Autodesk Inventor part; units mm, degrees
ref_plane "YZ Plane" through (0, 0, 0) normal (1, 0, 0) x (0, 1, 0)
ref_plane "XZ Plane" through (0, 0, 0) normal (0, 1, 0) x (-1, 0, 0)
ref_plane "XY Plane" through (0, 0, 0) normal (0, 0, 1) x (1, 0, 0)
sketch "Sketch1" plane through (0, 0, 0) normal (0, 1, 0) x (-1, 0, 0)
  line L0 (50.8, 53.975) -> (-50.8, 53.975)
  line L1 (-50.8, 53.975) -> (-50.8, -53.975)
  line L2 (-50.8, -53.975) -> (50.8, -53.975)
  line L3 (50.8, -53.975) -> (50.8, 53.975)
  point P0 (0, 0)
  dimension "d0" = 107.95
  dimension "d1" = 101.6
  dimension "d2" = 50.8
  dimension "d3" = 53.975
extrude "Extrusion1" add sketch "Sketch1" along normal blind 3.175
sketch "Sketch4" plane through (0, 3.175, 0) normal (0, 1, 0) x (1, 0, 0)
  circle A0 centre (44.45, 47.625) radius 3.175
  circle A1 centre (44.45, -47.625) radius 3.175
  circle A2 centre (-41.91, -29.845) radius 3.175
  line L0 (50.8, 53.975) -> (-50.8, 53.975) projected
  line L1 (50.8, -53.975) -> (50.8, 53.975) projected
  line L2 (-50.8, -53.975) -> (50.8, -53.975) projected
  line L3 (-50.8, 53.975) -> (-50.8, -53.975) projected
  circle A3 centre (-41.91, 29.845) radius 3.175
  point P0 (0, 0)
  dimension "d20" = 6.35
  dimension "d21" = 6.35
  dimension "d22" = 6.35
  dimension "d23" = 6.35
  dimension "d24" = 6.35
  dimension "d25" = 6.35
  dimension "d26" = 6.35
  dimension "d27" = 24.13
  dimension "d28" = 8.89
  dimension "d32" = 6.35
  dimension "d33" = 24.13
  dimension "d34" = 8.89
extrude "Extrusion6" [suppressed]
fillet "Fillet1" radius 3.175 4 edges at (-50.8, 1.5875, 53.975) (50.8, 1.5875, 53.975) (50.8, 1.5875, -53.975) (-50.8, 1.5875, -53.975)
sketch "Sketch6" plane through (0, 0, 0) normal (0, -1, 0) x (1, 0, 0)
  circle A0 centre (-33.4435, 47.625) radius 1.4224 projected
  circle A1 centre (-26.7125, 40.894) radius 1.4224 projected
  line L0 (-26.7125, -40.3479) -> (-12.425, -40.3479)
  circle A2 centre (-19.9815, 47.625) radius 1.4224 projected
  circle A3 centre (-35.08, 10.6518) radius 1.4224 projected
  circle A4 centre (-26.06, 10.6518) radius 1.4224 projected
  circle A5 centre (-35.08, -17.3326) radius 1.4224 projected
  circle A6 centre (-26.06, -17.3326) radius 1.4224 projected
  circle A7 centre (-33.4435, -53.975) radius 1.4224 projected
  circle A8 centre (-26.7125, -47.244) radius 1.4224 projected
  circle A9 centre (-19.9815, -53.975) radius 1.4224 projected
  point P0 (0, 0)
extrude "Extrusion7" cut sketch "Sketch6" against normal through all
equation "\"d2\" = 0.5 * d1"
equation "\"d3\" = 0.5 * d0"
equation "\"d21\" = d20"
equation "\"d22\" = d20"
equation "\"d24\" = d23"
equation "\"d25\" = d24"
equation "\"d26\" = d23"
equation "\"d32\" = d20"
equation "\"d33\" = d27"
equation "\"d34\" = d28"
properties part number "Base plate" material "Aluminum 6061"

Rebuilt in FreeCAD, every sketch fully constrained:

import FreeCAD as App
import Part
import Sketcher
from FreeCAD import Vector
Q = App.Units.Quantity


def edges_at(feature, points):
    """Names of the edges that pass closest to the given points."""
    edges = feature.Shape.Edges
    near = lambda p: min(range(len(edges)), key=lambda i: edges[i].distToShape(Part.Vertex(*p))[0])
    return sorted({f"Edge{near(p) + 1}" for p in points})


def add_polygon(sketch, points):
    """Adds a closed chain of lines whose ends are joined by coincident constraints."""
    first, n = sketch.GeometryCount, len(points)
    for a, b in zip(points, points[1:] + points[:1]):
        sketch.addGeometry(Part.LineSegment(App.Vector(*a, 0), App.Vector(*b, 0)), False)
    for i in range(n):
        sketch.addConstraint(Sketcher.Constraint("Coincident", first + i, 2, first + (i + 1) % n, 1))

doc = App.newDocument("Part")
body = doc.addObject("PartDesign::Body", "Body")

# Sketch on XZ plane
sketch1 = body.newObject("Sketcher::SketchObject", "Sketch")
sketch1.AttachmentSupport = (doc.getObject("XZ_Plane"), [""])
sketch1.MapMode = "FlatFace"
add_polygon(sketch1, [(-51, -54), (-51, 54), (51, 54), (51, -54)])  # lines 0-3
sketch1.addConstraint([
    Sketcher.Constraint("Vertical", 0),
    Sketcher.Constraint("Horizontal", 1),
    Sketcher.Constraint("Vertical", 2),
    Sketcher.Constraint("Horizontal", 3),
    Sketcher.Constraint("Symmetric", 0, 2, 2, 2, -1, 1),
    Sketcher.Constraint("DistanceX", 1, 1, 1, 2, Q("4 in")),
    Sketcher.Constraint("DistanceY", 0, 1, 0, 2, Q("4.25 in")),
])
pad1 = body.newObject("PartDesign::Pad", "Pad")
pad1.Profile = sketch1
pad1.Length = Q("0.125 in")
pad1.Reversed = True
doc.recompute()

fillet = body.newObject("PartDesign::Fillet", "Fillet")
fillet.Base = (pad1, edges_at(pad1, [
    (-50.8, 1.587, 53.975),
    (50.8, 1.587, 53.975),
    (50.8, 1.587, -53.975),
    (-50.8, 1.587, -53.975),
]))
fillet.Radius = Q("0.125 in")

# Sketch on XZ plane
sketch2 = body.newObject("Sketcher::SketchObject", "Sketch001")
sketch2.AttachmentSupport = (doc.getObject("XZ_Plane"), [""])
sketch2.MapMode = "FlatFace"
sketch2.addGeometry([
    Part.Circle(Vector(-33.4, 47.6, 0), Vector(0, 0, 1), 1.4),  # 0
    Part.Circle(Vector(-26.7, 40.9, 0), Vector(0, 0, 1), 1.4),  # 1
    Part.Circle(Vector(-20, 47.6, 0), Vector(0, 0, 1), 1.4),  # 2
    Part.Circle(Vector(-35.1, 10.7, 0), Vector(0, 0, 1), 1.4),  # 3
    Part.Circle(Vector(-26.1, 10.7, 0), Vector(0, 0, 1), 1.4),  # 4
    Part.Circle(Vector(-35.1, -17.3, 0), Vector(0, 0, 1), 1.4),  # 5
    Part.Circle(Vector(-26.1, -17.3, 0), Vector(0, 0, 1), 1.4),  # 6
    Part.Circle(Vector(-33.4, -54, 0), Vector(0, 0, 1), 1.4),  # 7
    Part.Circle(Vector(-26.7, -47.2, 0), Vector(0, 0, 1), 1.4),  # 8
    Part.Circle(Vector(-20, -54, 0), Vector(0, 0, 1), 1.4),  # 9
], False)
sketch2.addConstraint([
    Sketcher.Constraint("Equal", 0, 1),
    Sketcher.Constraint("Equal", 1, 2),
    Sketcher.Constraint("Equal", 2, 3),
    Sketcher.Constraint("Equal", 3, 4),
    Sketcher.Constraint("Equal", 4, 5),
    Sketcher.Constraint("Equal", 5, 6),
    Sketcher.Constraint("Equal", 6, 7),
    Sketcher.Constraint("Equal", 7, 8),
    Sketcher.Constraint("Equal", 8, 9),
    Sketcher.Constraint("Horizontal", 0, 3, 2, 3),
    Sketcher.Constraint("Horizontal", 3, 3, 4, 3),
    Sketcher.Constraint("Horizontal", 5, 3, 6, 3),
    Sketcher.Constraint("Horizontal", 7, 3, 9, 3),
    Sketcher.Constraint("Vertical", 3, 3, 5, 3),
    Sketcher.Constraint("Vertical", 4, 3, 6, 3),
    Sketcher.Constraint("Vertical", 0, 3, 7, 3),
    Sketcher.Constraint("Vertical", 1, 3, 8, 3),
    Sketcher.Constraint("Vertical", 2, 3, 9, 3),
    Sketcher.Constraint("Diameter", 0, Q("0.112 in")),
    Sketcher.Constraint("DistanceY", -1, 1, 1, 3, Q("1.61 in")),
    Sketcher.Constraint("DistanceY", 8, 3, -1, 1, Q("1.86 in")),
    Sketcher.Constraint("DistanceX", 0, 3, 2, 3, Q("0.53 in")),
    Sketcher.Constraint("DistanceY", -1, 1, 0, 3, Q("1.875 in")),
    Sketcher.Constraint("DistanceY", 7, 3, -1, 1, Q("2.125 in")),
    Sketcher.Constraint("DistanceX", 0, 3, 1, 3, Q("0.265 in")),
    Sketcher.Constraint("DistanceX", 3, 3, -1, 1, Q("1.3811 in")),
    Sketcher.Constraint("DistanceX", 1, 3, 4, 3, Q("0.0257 in")),
    Sketcher.Constraint("DistanceX", 0, 3, -1, 1, Q("33.4435 mm")),
    Sketcher.Constraint("DistanceY", -1, 1, 3, 3, Q("10.6518 mm")),
    Sketcher.Constraint("DistanceY", 5, 3, -1, 1, Q("17.3326 mm")),
])
pocket1 = body.newObject("PartDesign::Pocket", "Pocket")
pocket1.Profile = sketch2
pocket1.Type = "ThroughAll"

doc.recompute()
